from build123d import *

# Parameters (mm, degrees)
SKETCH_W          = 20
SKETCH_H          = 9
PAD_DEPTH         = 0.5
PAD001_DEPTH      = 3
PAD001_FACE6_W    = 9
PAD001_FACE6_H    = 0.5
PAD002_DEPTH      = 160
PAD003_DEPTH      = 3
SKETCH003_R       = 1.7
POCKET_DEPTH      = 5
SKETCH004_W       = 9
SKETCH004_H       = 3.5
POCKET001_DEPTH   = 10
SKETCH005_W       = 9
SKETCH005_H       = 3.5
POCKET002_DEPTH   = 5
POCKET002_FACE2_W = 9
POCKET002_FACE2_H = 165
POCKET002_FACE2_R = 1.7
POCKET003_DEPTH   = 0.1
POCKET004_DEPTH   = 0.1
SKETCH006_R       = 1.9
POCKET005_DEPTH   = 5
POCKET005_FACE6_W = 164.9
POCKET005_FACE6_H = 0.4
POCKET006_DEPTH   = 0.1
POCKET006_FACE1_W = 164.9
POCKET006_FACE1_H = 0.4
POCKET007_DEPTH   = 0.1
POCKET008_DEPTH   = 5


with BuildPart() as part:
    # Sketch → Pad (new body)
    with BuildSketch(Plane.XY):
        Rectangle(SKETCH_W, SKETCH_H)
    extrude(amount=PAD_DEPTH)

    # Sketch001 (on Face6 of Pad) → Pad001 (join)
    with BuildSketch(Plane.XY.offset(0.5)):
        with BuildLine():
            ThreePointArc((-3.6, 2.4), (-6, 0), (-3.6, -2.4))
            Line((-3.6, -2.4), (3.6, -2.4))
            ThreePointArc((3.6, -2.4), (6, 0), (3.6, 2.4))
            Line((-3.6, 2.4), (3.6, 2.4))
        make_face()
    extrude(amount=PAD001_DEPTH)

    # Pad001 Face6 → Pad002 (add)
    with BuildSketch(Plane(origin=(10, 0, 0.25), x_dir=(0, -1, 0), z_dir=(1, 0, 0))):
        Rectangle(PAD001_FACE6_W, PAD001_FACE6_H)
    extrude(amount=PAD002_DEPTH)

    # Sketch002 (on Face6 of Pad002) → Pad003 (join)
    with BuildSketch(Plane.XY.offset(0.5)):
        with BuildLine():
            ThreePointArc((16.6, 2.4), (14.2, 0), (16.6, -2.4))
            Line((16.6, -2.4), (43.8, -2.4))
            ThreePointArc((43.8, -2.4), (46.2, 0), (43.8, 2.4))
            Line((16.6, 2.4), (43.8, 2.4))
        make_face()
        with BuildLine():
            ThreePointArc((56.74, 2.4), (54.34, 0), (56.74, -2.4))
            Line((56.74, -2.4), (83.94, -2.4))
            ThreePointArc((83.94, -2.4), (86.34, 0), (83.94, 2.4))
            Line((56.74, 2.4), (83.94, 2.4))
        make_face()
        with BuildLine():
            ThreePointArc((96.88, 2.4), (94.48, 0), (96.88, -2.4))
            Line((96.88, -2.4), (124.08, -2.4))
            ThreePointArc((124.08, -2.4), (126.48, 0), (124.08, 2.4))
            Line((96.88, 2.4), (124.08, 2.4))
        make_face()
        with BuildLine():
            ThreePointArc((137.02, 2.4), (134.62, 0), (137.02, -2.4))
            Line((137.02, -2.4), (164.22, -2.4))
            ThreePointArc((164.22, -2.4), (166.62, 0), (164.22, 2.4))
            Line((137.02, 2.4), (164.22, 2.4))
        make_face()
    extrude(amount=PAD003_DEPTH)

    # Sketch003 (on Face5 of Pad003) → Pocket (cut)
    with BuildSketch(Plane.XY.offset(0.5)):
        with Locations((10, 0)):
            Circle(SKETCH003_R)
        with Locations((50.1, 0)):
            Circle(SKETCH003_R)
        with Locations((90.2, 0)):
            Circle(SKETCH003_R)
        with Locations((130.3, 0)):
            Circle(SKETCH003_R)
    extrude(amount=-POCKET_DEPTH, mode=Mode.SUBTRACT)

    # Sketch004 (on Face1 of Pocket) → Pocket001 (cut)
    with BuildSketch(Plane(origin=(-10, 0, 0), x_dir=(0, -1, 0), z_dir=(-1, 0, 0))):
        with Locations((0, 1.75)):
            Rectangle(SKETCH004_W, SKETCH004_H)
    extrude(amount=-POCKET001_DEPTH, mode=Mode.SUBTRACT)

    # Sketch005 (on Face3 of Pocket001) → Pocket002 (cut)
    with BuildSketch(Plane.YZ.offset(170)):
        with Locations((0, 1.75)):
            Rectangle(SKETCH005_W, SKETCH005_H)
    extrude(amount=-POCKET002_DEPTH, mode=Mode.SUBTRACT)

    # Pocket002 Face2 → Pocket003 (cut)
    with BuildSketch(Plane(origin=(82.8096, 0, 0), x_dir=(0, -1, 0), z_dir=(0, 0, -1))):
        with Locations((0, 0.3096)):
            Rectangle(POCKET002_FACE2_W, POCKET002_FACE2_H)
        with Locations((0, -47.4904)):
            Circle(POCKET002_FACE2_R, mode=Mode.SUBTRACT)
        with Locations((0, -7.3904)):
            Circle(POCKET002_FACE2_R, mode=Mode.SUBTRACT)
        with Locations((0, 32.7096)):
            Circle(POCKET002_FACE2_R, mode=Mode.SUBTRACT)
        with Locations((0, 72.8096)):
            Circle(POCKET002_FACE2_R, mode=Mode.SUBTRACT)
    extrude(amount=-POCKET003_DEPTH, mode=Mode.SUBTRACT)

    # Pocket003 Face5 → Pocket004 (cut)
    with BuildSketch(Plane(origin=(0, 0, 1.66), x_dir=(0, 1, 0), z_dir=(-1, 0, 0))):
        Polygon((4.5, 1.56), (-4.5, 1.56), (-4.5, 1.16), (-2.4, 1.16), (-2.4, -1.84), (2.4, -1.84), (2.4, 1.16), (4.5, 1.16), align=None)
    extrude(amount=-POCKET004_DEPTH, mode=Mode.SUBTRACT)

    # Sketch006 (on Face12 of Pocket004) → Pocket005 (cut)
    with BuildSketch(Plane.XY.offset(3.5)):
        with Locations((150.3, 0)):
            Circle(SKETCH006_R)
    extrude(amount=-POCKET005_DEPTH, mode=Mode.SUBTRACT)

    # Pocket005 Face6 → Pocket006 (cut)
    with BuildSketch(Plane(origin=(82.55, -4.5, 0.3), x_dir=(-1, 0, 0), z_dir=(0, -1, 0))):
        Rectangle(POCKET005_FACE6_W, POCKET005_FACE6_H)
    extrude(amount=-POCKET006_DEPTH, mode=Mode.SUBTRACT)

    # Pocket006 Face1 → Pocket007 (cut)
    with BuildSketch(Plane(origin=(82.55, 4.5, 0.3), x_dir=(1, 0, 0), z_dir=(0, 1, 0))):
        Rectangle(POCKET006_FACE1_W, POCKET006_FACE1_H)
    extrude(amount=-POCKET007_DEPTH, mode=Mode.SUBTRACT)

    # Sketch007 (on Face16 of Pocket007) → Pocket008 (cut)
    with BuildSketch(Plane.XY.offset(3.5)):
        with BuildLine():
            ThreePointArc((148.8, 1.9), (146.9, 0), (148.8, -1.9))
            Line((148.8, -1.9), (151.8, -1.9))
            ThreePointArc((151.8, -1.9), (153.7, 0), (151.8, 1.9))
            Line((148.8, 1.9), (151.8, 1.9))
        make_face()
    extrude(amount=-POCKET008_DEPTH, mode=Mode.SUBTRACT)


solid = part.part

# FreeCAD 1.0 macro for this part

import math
import FreeCAD as App
import Part
import Sketcher

V = App.Vector
Q = App.Units.Quantity

doc = App.newDocument("Part")
body = doc.addObject("PartDesign::Body", "Body")

# Sketch on XY plane
sketch1 = body.newObject("Sketcher::SketchObject", "Sketch")
sketch1.AttachmentSupport = (doc.getObject("XY_Plane"), [""])
sketch1.MapMode = "FlatFace"
sketch1.addGeometry(Part.LineSegment(V(-10, 4, 0), V(-10, -4, 0)), False)
sketch1.addGeometry(Part.LineSegment(V(-10, -4, 0), V(10, -4, 0)), False)
sketch1.addGeometry(Part.LineSegment(V(10, -4, 0), V(10, 4, 0)), False)
sketch1.addGeometry(Part.LineSegment(V(10, 4, 0), V(-10, 4, 0)), False)
sketch1.addConstraint(Sketcher.Constraint("Coincident", 0, 2, 1, 1))
sketch1.addConstraint(Sketcher.Constraint("Coincident", 1, 2, 2, 1))
sketch1.addConstraint(Sketcher.Constraint("Coincident", 2, 2, 3, 1))
sketch1.addConstraint(Sketcher.Constraint("Coincident", 3, 2, 0, 1))
sketch1.addConstraint(Sketcher.Constraint("Vertical", 0))
sketch1.addConstraint(Sketcher.Constraint("Horizontal", 1))
sketch1.addConstraint(Sketcher.Constraint("Vertical", 2))
sketch1.addConstraint(Sketcher.Constraint("Horizontal", 3))
sketch1.addConstraint(Sketcher.Constraint("Symmetric", 0, 2, 2, 2, -1, 1))
sketch1.addConstraint(Sketcher.Constraint("DistanceX", 1, 1, 1, 2, Q("20 mm")))
sketch1.addConstraint(Sketcher.Constraint("DistanceY", 0, 2, 0, 1, Q("9 mm")))
pad1 = body.newObject("PartDesign::Pad", "Pad")
pad1.Profile = sketch1
pad1.Length = 0.5

# Sketch on XY plane
sketch2 = body.newObject("Sketcher::SketchObject", "Sketch001")
sketch2.AttachmentSupport = (doc.getObject("XY_Plane"), [""])
sketch2.MapMode = "FlatFace"
sketch2.AttachmentOffset = App.Placement(V(0, 0, 0.5), App.Rotation())
sketch2.addGeometry(Part.ArcOfCircle(Part.Circle(V(-3.6, 0, 0), V(0, 0, 1), 2.4), math.radians(90), math.radians(270)), False)
sketch2.addGeometry(Part.LineSegment(V(-3.6, -2.4, 0), V(3.6, -2.4, 0)), False)
sketch2.addGeometry(Part.ArcOfCircle(Part.Circle(V(3.6, 0, 0), V(0, 0, 1), 2.4), math.radians(-90), math.radians(90)), False)
sketch2.addGeometry(Part.LineSegment(V(3.6, 2.4, 0), V(-3.6, 2.4, 0)), False)
sketch2.addConstraint(Sketcher.Constraint("Tangent", 0, 2, 1, 1))
sketch2.addConstraint(Sketcher.Constraint("Tangent", 1, 2, 2, 1))
sketch2.addConstraint(Sketcher.Constraint("Tangent", 2, 2, 3, 1))
sketch2.addConstraint(Sketcher.Constraint("Tangent", 3, 2, 0, 1))
sketch2.addConstraint(Sketcher.Constraint("Horizontal", 1))
sketch2.addConstraint(Sketcher.Constraint("Horizontal", 3))
sketch2.addConstraint(Sketcher.Constraint("Symmetric", 0, 3, 2, 3, -1, 1))
sketch2.addConstraint(Sketcher.Constraint("Radius", 0, Q("2.4 mm")))
sketch2.addConstraint(Sketcher.Constraint("DistanceX", 1, 1, 1, 2, Q("7.2 mm")))
pad2 = body.newObject("PartDesign::Pad", "Pad001")
pad2.Profile = sketch2
pad2.Length = 3

# Sketch on YZ plane
sketch3 = body.newObject("Sketcher::SketchObject", "Sketch002")
sketch3.AttachmentSupport = (doc.getObject("YZ_Plane"), [""])
sketch3.MapMode = "FlatFace"
sketch3.AttachmentOffset = App.Placement(V(0, 0, 10), App.Rotation())
sketch3.addGeometry(Part.LineSegment(V(4.5, 0, 0), V(4.5, 0.5, 0)), False)
sketch3.addGeometry(Part.LineSegment(V(4.5, 0.5, 0), V(-4.5, 0.5, 0)), False)
sketch3.addGeometry(Part.LineSegment(V(-4.5, 0.5, 0), V(-4.5, 0, 0)), False)
sketch3.addGeometry(Part.LineSegment(V(-4.5, 0, 0), V(4.5, 0, 0)), False)
sketch3.addConstraint(Sketcher.Constraint("Coincident", 0, 2, 1, 1))
sketch3.addConstraint(Sketcher.Constraint("Coincident", 1, 2, 2, 1))
sketch3.addConstraint(Sketcher.Constraint("Coincident", 2, 2, 3, 1))
sketch3.addConstraint(Sketcher.Constraint("Coincident", 3, 2, 0, 1))
sketch3.addConstraint(Sketcher.Constraint("Vertical", 0))
sketch3.addConstraint(Sketcher.Constraint("Horizontal", 1))
sketch3.addConstraint(Sketcher.Constraint("Vertical", 2))
sketch3.addConstraint(Sketcher.Constraint("Horizontal", 3))
sketch3.addConstraint(Sketcher.Constraint("Symmetric", 2, 2, 3, 2, -1, 1))
sketch3.addConstraint(Sketcher.Constraint("DistanceX", 1, 2, 1, 1, Q("9 mm")))
sketch3.addConstraint(Sketcher.Constraint("DistanceY", 0, 1, 0, 2, Q("0.5 mm")))
pad3 = body.newObject("PartDesign::Pad", "Pad002")
pad3.Profile = sketch3
pad3.Length = 160

# Sketch on XY plane
sketch4 = body.newObject("Sketcher::SketchObject", "Sketch003")
sketch4.AttachmentSupport = (doc.getObject("XY_Plane"), [""])
sketch4.MapMode = "FlatFace"
sketch4.AttachmentOffset = App.Placement(V(0, 0, 0.5), App.Rotation())
sketch4.addGeometry(Part.ArcOfCircle(Part.Circle(V(16.6, 0, 0), V(0, 0, 1), 2.4), math.radians(90), math.radians(270)), False)
sketch4.addGeometry(Part.LineSegment(V(16.6, -2.4, 0), V(43.8, -2.4, 0)), False)
sketch4.addGeometry(Part.ArcOfCircle(Part.Circle(V(43.8, 0, 0), V(0, 0, 1), 2.4), math.radians(-90), math.radians(90)), False)
sketch4.addGeometry(Part.LineSegment(V(43.8, 2.4, 0), V(16.6, 2.4, 0)), False)
sketch4.addGeometry(Part.ArcOfCircle(Part.Circle(V(56.7, 0, 0), V(0, 0, 1), 2.4), math.radians(90), math.radians(270)), False)
sketch4.addGeometry(Part.LineSegment(V(56.7, -2.4, 0), V(83.9, -2.4, 0)), False)
sketch4.addGeometry(Part.ArcOfCircle(Part.Circle(V(83.9, 0, 0), V(0, 0, 1), 2.4), math.radians(-90), math.radians(90)), False)
sketch4.addGeometry(Part.LineSegment(V(83.9, 2.4, 0), V(56.7, 2.4, 0)), False)
sketch4.addGeometry(Part.ArcOfCircle(Part.Circle(V(96.9, 0, 0), V(0, 0, 1), 2.4), math.radians(90), math.radians(270)), False)
sketch4.addGeometry(Part.LineSegment(V(96.9, -2.4, 0), V(124.1, -2.4, 0)), False)
sketch4.addGeometry(Part.ArcOfCircle(Part.Circle(V(124.1, 0, 0), V(0, 0, 1), 2.4), math.radians(-90), math.radians(90)), False)
sketch4.addGeometry(Part.LineSegment(V(124.1, 2.4, 0), V(96.9, 2.4, 0)), False)
sketch4.addGeometry(Part.ArcOfCircle(Part.Circle(V(137, 0, 0), V(0, 0, 1), 2.4), math.radians(90), math.radians(270)), False)
sketch4.addGeometry(Part.LineSegment(V(137, -2.4, 0), V(164.2, -2.4, 0)), False)
sketch4.addGeometry(Part.ArcOfCircle(Part.Circle(V(164.2, 0, 0), V(0, 0, 1), 2.4), math.radians(-90), math.radians(90)), False)
sketch4.addGeometry(Part.LineSegment(V(164.2, 2.4, 0), V(137, 2.4, 0)), False)
sketch4.addConstraint(Sketcher.Constraint("Tangent", 0, 2, 1, 1))
sketch4.addConstraint(Sketcher.Constraint("Tangent", 1, 2, 2, 1))
sketch4.addConstraint(Sketcher.Constraint("Tangent", 2, 2, 3, 1))
sketch4.addConstraint(Sketcher.Constraint("Tangent", 3, 2, 0, 1))
sketch4.addConstraint(Sketcher.Constraint("Tangent", 4, 2, 5, 1))
sketch4.addConstraint(Sketcher.Constraint("Tangent", 5, 2, 6, 1))
sketch4.addConstraint(Sketcher.Constraint("Tangent", 6, 2, 7, 1))
sketch4.addConstraint(Sketcher.Constraint("Tangent", 7, 2, 4, 1))
sketch4.addConstraint(Sketcher.Constraint("Tangent", 8, 2, 9, 1))
sketch4.addConstraint(Sketcher.Constraint("Tangent", 9, 2, 10, 1))
sketch4.addConstraint(Sketcher.Constraint("Tangent", 10, 2, 11, 1))
sketch4.addConstraint(Sketcher.Constraint("Tangent", 11, 2, 8, 1))
sketch4.addConstraint(Sketcher.Constraint("Tangent", 12, 2, 13, 1))
sketch4.addConstraint(Sketcher.Constraint("Tangent", 13, 2, 14, 1))
sketch4.addConstraint(Sketcher.Constraint("Tangent", 14, 2, 15, 1))
sketch4.addConstraint(Sketcher.Constraint("Tangent", 15, 2, 12, 1))
sketch4.addConstraint(Sketcher.Constraint("Horizontal", 1))
sketch4.addConstraint(Sketcher.Constraint("Horizontal", 3))
sketch4.addConstraint(Sketcher.Constraint("Horizontal", 5))
sketch4.addConstraint(Sketcher.Constraint("Horizontal", 7))
sketch4.addConstraint(Sketcher.Constraint("Horizontal", 9))
sketch4.addConstraint(Sketcher.Constraint("Horizontal", 11))
sketch4.addConstraint(Sketcher.Constraint("Horizontal", 13))
sketch4.addConstraint(Sketcher.Constraint("Horizontal", 15))
sketch4.addConstraint(Sketcher.Constraint("Equal", 2, 4))
sketch4.addConstraint(Sketcher.Constraint("Equal", 6, 8))
sketch4.addConstraint(Sketcher.Constraint("Equal", 10, 12))
sketch4.addConstraint(Sketcher.Constraint("PointOnObject", 0, 3, -1))
sketch4.addConstraint(Sketcher.Constraint("PointOnObject", 4, 3, -1))
sketch4.addConstraint(Sketcher.Constraint("PointOnObject", 8, 3, -1))
sketch4.addConstraint(Sketcher.Constraint("PointOnObject", 12, 3, -1))
sketch4.addConstraint(Sketcher.Constraint("Equal", 3, 5))
sketch4.addConstraint(Sketcher.Constraint("Equal", 7, 9))
sketch4.addConstraint(Sketcher.Constraint("Equal", 11, 13))
sketch4.addConstraint(Sketcher.Constraint("Radius", 0, Q("2.4 mm")))
sketch4.addConstraint(Sketcher.Constraint("DistanceX", 1, 1, 1, 2, Q("27.2 mm")))
sketch4.addConstraint(Sketcher.Constraint("DistanceX", -1, 1, 0, 3, Q("16.6 mm")))
sketch4.addConstraint(Sketcher.Constraint("DistanceX", -1, 1, 4, 3, Q("56.74 mm")))
sketch4.addConstraint(Sketcher.Constraint("DistanceX", -1, 1, 8, 3, Q("96.88 mm")))
sketch4.addConstraint(Sketcher.Constraint("DistanceX", -1, 1, 12, 3, Q("137.02 mm")))
pad4 = body.newObject("PartDesign::Pad", "Pad003")
pad4.Profile = sketch4
pad4.Length = 3

# Sketch on XY plane
sketch5 = body.newObject("Sketcher::SketchObject", "Sketch004")
sketch5.AttachmentSupport = (doc.getObject("XY_Plane"), [""])
sketch5.MapMode = "FlatFace"
sketch5.AttachmentOffset = App.Placement(V(0, 0, 0.5), App.Rotation())
sketch5.addGeometry(Part.Circle(V(10, 0, 0), V(0, 0, 1), 1.7), False)
sketch5.addGeometry(Part.Circle(V(50.1, 0, 0), V(0, 0, 1), 1.7), False)
sketch5.addGeometry(Part.Circle(V(90.2, 0, 0), V(0, 0, 1), 1.7), False)
sketch5.addGeometry(Part.Circle(V(130.3, 0, 0), V(0, 0, 1), 1.7), False)
sketch5.addConstraint(Sketcher.Constraint("Equal", 0, 1))
sketch5.addConstraint(Sketcher.Constraint("Equal", 1, 2))
sketch5.addConstraint(Sketcher.Constraint("Equal", 2, 3))
sketch5.addConstraint(Sketcher.Constraint("PointOnObject", 0, 3, -1))
sketch5.addConstraint(Sketcher.Constraint("PointOnObject", 1, 3, -1))
sketch5.addConstraint(Sketcher.Constraint("PointOnObject", 2, 3, -1))
sketch5.addConstraint(Sketcher.Constraint("PointOnObject", 3, 3, -1))
sketch5.addConstraint(Sketcher.Constraint("Diameter", 0, Q("3.4 mm")))
sketch5.addConstraint(Sketcher.Constraint("DistanceX", -1, 1, 0, 3, Q("10 mm")))
sketch5.addConstraint(Sketcher.Constraint("DistanceX", -1, 1, 1, 3, Q("50.1 mm")))
sketch5.addConstraint(Sketcher.Constraint("DistanceX", -1, 1, 2, 3, Q("90.2 mm")))
sketch5.addConstraint(Sketcher.Constraint("DistanceX", -1, 1, 3, 3, Q("130.3 mm")))
pocket1 = body.newObject("PartDesign::Pocket", "Pocket")
pocket1.Profile = sketch5
pocket1.Length = 5

# Sketch on YZ plane
sketch6 = body.newObject("Sketcher::SketchObject", "Sketch005")
sketch6.AttachmentSupport = (doc.getObject("YZ_Plane"), [""])
sketch6.MapMode = "FlatFace"
sketch6.AttachmentOffset = App.Placement(V(0, 0, -10), App.Rotation())
sketch6.addGeometry(Part.LineSegment(V(4.5, 3.5, 0), V(4.5, 0, 0)), False)
sketch6.addGeometry(Part.LineSegment(V(4.5, 0, 0), V(-4.5, 0, 0)), False)
sketch6.addGeometry(Part.LineSegment(V(-4.5, 0, 0), V(-4.5, 3.5, 0)), False)
sketch6.addGeometry(Part.LineSegment(V(-4.5, 3.5, 0), V(4.5, 3.5, 0)), False)
sketch6.addConstraint(Sketcher.Constraint("Coincident", 0, 2, 1, 1))
sketch6.addConstraint(Sketcher.Constraint("Coincident", 1, 2, 2, 1))
sketch6.addConstraint(Sketcher.Constraint("Coincident", 2, 2, 3, 1))
sketch6.addConstraint(Sketcher.Constraint("Coincident", 3, 2, 0, 1))
sketch6.addConstraint(Sketcher.Constraint("Vertical", 0))
sketch6.addConstraint(Sketcher.Constraint("Horizontal", 1))
sketch6.addConstraint(Sketcher.Constraint("Vertical", 2))
sketch6.addConstraint(Sketcher.Constraint("Horizontal", 3))
sketch6.addConstraint(Sketcher.Constraint("Symmetric", 0, 2, 1, 2, -1, 1))
sketch6.addConstraint(Sketcher.Constraint("DistanceX", 1, 2, 1, 1, Q("9 mm")))
sketch6.addConstraint(Sketcher.Constraint("DistanceY", 0, 2, 0, 1, Q("3.5 mm")))
pocket2 = body.newObject("PartDesign::Pocket", "Pocket001")
pocket2.Profile = sketch6
pocket2.Length = 10
pocket2.Reversed = True

# Sketch on YZ plane
sketch7 = body.newObject("Sketcher::SketchObject", "Sketch006")
sketch7.AttachmentSupport = (doc.getObject("YZ_Plane"), [""])
sketch7.MapMode = "FlatFace"
sketch7.AttachmentOffset = App.Placement(V(0, 0, 170), App.Rotation())
sketch7.addGeometry(Part.LineSegment(V(-4.5, 3.5, 0), V(-4.5, 0, 0)), False)
sketch7.addGeometry(Part.LineSegment(V(-4.5, 0, 0), V(4.5, 0, 0)), False)
sketch7.addGeometry(Part.LineSegment(V(4.5, 0, 0), V(4.5, 3.5, 0)), False)
sketch7.addGeometry(Part.LineSegment(V(4.5, 3.5, 0), V(-4.5, 3.5, 0)), False)
sketch7.addConstraint(Sketcher.Constraint("Coincident", 0, 2, 1, 1))
sketch7.addConstraint(Sketcher.Constraint("Coincident", 1, 2, 2, 1))
sketch7.addConstraint(Sketcher.Constraint("Coincident", 2, 2, 3, 1))
sketch7.addConstraint(Sketcher.Constraint("Coincident", 3, 2, 0, 1))
sketch7.addConstraint(Sketcher.Constraint("Vertical", 0))
sketch7.addConstraint(Sketcher.Constraint("Horizontal", 1))
sketch7.addConstraint(Sketcher.Constraint("Vertical", 2))
sketch7.addConstraint(Sketcher.Constraint("Horizontal", 3))
sketch7.addConstraint(Sketcher.Constraint("Symmetric", 0, 2, 1, 2, -1, 1))
sketch7.addConstraint(Sketcher.Constraint("DistanceX", 1, 1, 1, 2, Q("9 mm")))
sketch7.addConstraint(Sketcher.Constraint("DistanceY", 0, 2, 0, 1, Q("3.5 mm")))
pocket3 = body.newObject("PartDesign::Pocket", "Pocket002")
pocket3.Profile = sketch7
pocket3.Length = 5

# Sketch on XY plane
sketch8 = body.newObject("Sketcher::SketchObject", "Sketch007")
sketch8.AttachmentSupport = (doc.getObject("XY_Plane"), [""])
sketch8.MapMode = "FlatFace"
sketch8.addGeometry(Part.LineSegment(V(0, 4.5, 0), V(165, 4.5, 0)), False)
sketch8.addGeometry(Part.LineSegment(V(165, 4.5, 0), V(165, -4.5, 0)), False)
sketch8.addGeometry(Part.LineSegment(V(165, -4.5, 0), V(0, -4.5, 0)), False)
sketch8.addGeometry(Part.LineSegment(V(0, -4.5, 0), V(0, 4.5, 0)), False)
sketch8.addGeometry(Part.Circle(V(130.3, 0, 0), V(0, 0, 1), 1.7), False)
sketch8.addGeometry(Part.Circle(V(90.2, 0, 0), V(0, 0, 1), 1.7), False)
sketch8.addGeometry(Part.Circle(V(50.1, 0, 0), V(0, 0, 1), 1.7), False)
sketch8.addGeometry(Part.Circle(V(10, 0, 0), V(0, 0, 1), 1.7), False)
sketch8.addConstraint(Sketcher.Constraint("Coincident", 0, 2, 1, 1))
sketch8.addConstraint(Sketcher.Constraint("Coincident", 1, 2, 2, 1))
sketch8.addConstraint(Sketcher.Constraint("Coincident", 2, 2, 3, 1))
sketch8.addConstraint(Sketcher.Constraint("Coincident", 3, 2, 0, 1))
sketch8.addConstraint(Sketcher.Constraint("Horizontal", 0))
sketch8.addConstraint(Sketcher.Constraint("Vertical", 1))
sketch8.addConstraint(Sketcher.Constraint("Horizontal", 2))
sketch8.addConstraint(Sketcher.Constraint("Vertical", 3))
sketch8.addConstraint(Sketcher.Constraint("Equal", 4, 5))
sketch8.addConstraint(Sketcher.Constraint("Equal", 5, 6))
sketch8.addConstraint(Sketcher.Constraint("Equal", 6, 7))
sketch8.addConstraint(Sketcher.Constraint("Symmetric", 2, 2, 3, 2, -1, 1))
sketch8.addConstraint(Sketcher.Constraint("PointOnObject", 4, 3, -1))
sketch8.addConstraint(Sketcher.Constraint("PointOnObject", 5, 3, -1))
sketch8.addConstraint(Sketcher.Constraint("PointOnObject", 6, 3, -1))
sketch8.addConstraint(Sketcher.Constraint("PointOnObject", 7, 3, -1))
sketch8.addConstraint(Sketcher.Constraint("Diameter", 4, Q("3.4 mm")))
sketch8.addConstraint(Sketcher.Constraint("DistanceX", 0, 1, 0, 2, Q("165 mm")))
sketch8.addConstraint(Sketcher.Constraint("DistanceY", 1, 2, 1, 1, Q("9 mm")))
sketch8.addConstraint(Sketcher.Constraint("DistanceX", -1, 1, 7, 3, Q("10 mm")))
sketch8.addConstraint(Sketcher.Constraint("DistanceX", -1, 1, 4, 3, Q("130.3 mm")))
sketch8.addConstraint(Sketcher.Constraint("DistanceX", -1, 1, 5, 3, Q("90.2 mm")))
sketch8.addConstraint(Sketcher.Constraint("DistanceX", -1, 1, 6, 3, Q("50.1 mm")))
pocket4 = body.newObject("PartDesign::Pocket", "Pocket003")
pocket4.Profile = sketch8
pocket4.Length = 0.1
pocket4.Reversed = True

# Sketch on YZ plane
sketch9 = body.newObject("Sketcher::SketchObject", "Sketch008")
sketch9.AttachmentSupport = (doc.getObject("YZ_Plane"), [""])
sketch9.MapMode = "FlatFace"
sketch9.addGeometry(Part.LineSegment(V(4.5, 0.1, 0), V(-4.5, 0.1, 0)), False)
sketch9.addGeometry(Part.LineSegment(V(-4.5, 0.1, 0), V(-4.5, 0.5, 0)), False)
sketch9.addGeometry(Part.LineSegment(V(-4.5, 0.5, 0), V(-2.4, 0.5, 0)), False)
sketch9.addGeometry(Part.LineSegment(V(-2.4, 0.5, 0), V(-2.4, 3.5, 0)), False)
sketch9.addGeometry(Part.LineSegment(V(-2.4, 3.5, 0), V(2.4, 3.5, 0)), False)
sketch9.addGeometry(Part.LineSegment(V(2.4, 3.5, 0), V(2.4, 0.5, 0)), False)
sketch9.addGeometry(Part.LineSegment(V(2.4, 0.5, 0), V(4.5, 0.5, 0)), False)
sketch9.addGeometry(Part.LineSegment(V(4.5, 0.5, 0), V(4.5, 0.1, 0)), False)
sketch9.addConstraint(Sketcher.Constraint("Coincident", 0, 2, 1, 1))
sketch9.addConstraint(Sketcher.Constraint("Coincident", 1, 2, 2, 1))
sketch9.addConstraint(Sketcher.Constraint("Coincident", 2, 2, 3, 1))
sketch9.addConstraint(Sketcher.Constraint("Coincident", 3, 2, 4, 1))
sketch9.addConstraint(Sketcher.Constraint("Coincident", 4, 2, 5, 1))
sketch9.addConstraint(Sketcher.Constraint("Coincident", 5, 2, 6, 1))
sketch9.addConstraint(Sketcher.Constraint("Coincident", 6, 2, 7, 1))
sketch9.addConstraint(Sketcher.Constraint("Coincident", 7, 2, 0, 1))
sketch9.addConstraint(Sketcher.Constraint("Horizontal", 0))
sketch9.addConstraint(Sketcher.Constraint("Vertical", 1))
sketch9.addConstraint(Sketcher.Constraint("Horizontal", 2))
sketch9.addConstraint(Sketcher.Constraint("Vertical", 3))
sketch9.addConstraint(Sketcher.Constraint("Horizontal", 4))
sketch9.addConstraint(Sketcher.Constraint("Vertical", 5))
sketch9.addConstraint(Sketcher.Constraint("Horizontal", 6))
sketch9.addConstraint(Sketcher.Constraint("Vertical", 7))
sketch9.addConstraint(Sketcher.Constraint("Symmetric", 2, 2, 5, 2, -2))
sketch9.addConstraint(Sketcher.Constraint("Equal", 2, 6))
sketch9.addConstraint(Sketcher.Constraint("DistanceX", 0, 2, 0, 1, Q("9 mm")))
sketch9.addConstraint(Sketcher.Constraint("DistanceY", 3, 1, 3, 2, Q("3 mm")))
sketch9.addConstraint(Sketcher.Constraint("DistanceX", 2, 1, 2, 2, Q("2.1 mm")))
sketch9.addConstraint(Sketcher.Constraint("DistanceY", 1, 1, 1, 2, Q("0.4 mm")))
sketch9.addConstraint(Sketcher.Constraint("DistanceY", -1, 1, 0, 2, Q("0.1 mm")))
pocket5 = body.newObject("PartDesign::Pocket", "Pocket004")
pocket5.Profile = sketch9
pocket5.Length = 0.1
pocket5.Reversed = True

# Sketch on XY plane
sketch10 = body.newObject("Sketcher::SketchObject", "Sketch009")
sketch10.AttachmentSupport = (doc.getObject("XY_Plane"), [""])
sketch10.MapMode = "FlatFace"
sketch10.AttachmentOffset = App.Placement(V(0, 0, 3.5), App.Rotation())
sketch10.addGeometry(Part.Circle(V(150.3, 0, 0), V(0, 0, 1), 1.9), False)
sketch10.addConstraint(Sketcher.Constraint("PointOnObject", 0, 3, -1))
sketch10.addConstraint(Sketcher.Constraint("Diameter", 0, Q("3.8 mm")))
sketch10.addConstraint(Sketcher.Constraint("DistanceX", -1, 1, 0, 3, Q("150.3 mm")))
pocket6 = body.newObject("PartDesign::Pocket", "Pocket005")
pocket6.Profile = sketch10
pocket6.Length = 5

# Sketch on XZ plane
sketch11 = body.newObject("Sketcher::SketchObject", "Sketch010")
sketch11.AttachmentSupport = (doc.getObject("XZ_Plane"), [""])
sketch11.MapMode = "FlatFace"
sketch11.AttachmentOffset = App.Placement(V(0, 0, 4.5), App.Rotation())
sketch11.addGeometry(Part.LineSegment(V(165, 0.1, 0), V(165, 0.5, 0)), False)
sketch11.addGeometry(Part.LineSegment(V(165, 0.5, 0), V(0.1, 0.5, 0)), False)
sketch11.addGeometry(Part.LineSegment(V(0.1, 0.5, 0), V(0.1, 0.1, 0)), False)
sketch11.addGeometry(Part.LineSegment(V(0.1, 0.1, 0), V(165, 0.1, 0)), False)
sketch11.addConstraint(Sketcher.Constraint("Coincident", 0, 2, 1, 1))
sketch11.addConstraint(Sketcher.Constraint("Coincident", 1, 2, 2, 1))
sketch11.addConstraint(Sketcher.Constraint("Coincident", 2, 2, 3, 1))
sketch11.addConstraint(Sketcher.Constraint("Coincident", 3, 2, 0, 1))
sketch11.addConstraint(Sketcher.Constraint("Vertical", 0))
sketch11.addConstraint(Sketcher.Constraint("Horizontal", 1))
sketch11.addConstraint(Sketcher.Constraint("Vertical", 2))
sketch11.addConstraint(Sketcher.Constraint("Horizontal", 3))
sketch11.addConstraint(Sketcher.Constraint("DistanceX", 1, 2, 1, 1, Q("164.9 mm")))
sketch11.addConstraint(Sketcher.Constraint("DistanceY", 0, 1, 0, 2, Q("0.4 mm")))
sketch11.addConstraint(Sketcher.Constraint("DistanceX", -1, 1, 0, 2, Q("165 mm")))
sketch11.addConstraint(Sketcher.Constraint("DistanceY", -1, 1, 0, 2, Q("0.5 mm")))
pocket7 = body.newObject("PartDesign::Pocket", "Pocket006")
pocket7.Profile = sketch11
pocket7.Length = 0.1

# Sketch on XZ plane
sketch12 = body.newObject("Sketcher::SketchObject", "Sketch011")
sketch12.AttachmentSupport = (doc.getObject("XZ_Plane"), [""])
sketch12.MapMode = "FlatFace"
sketch12.AttachmentOffset = App.Placement(V(0, 0, -4.5), App.Rotation())
sketch12.addGeometry(Part.LineSegment(V(0.1, 0.1, 0), V(0.1, 0.5, 0)), False)
sketch12.addGeometry(Part.LineSegment(V(0.1, 0.5, 0), V(165, 0.5, 0)), False)
sketch12.addGeometry(Part.LineSegment(V(165, 0.5, 0), V(165, 0.1, 0)), False)
sketch12.addGeometry(Part.LineSegment(V(165, 0.1, 0), V(0.1, 0.1, 0)), False)
sketch12.addConstraint(Sketcher.Constraint("Coincident", 0, 2, 1, 1))
sketch12.addConstraint(Sketcher.Constraint("Coincident", 1, 2, 2, 1))
sketch12.addConstraint(Sketcher.Constraint("Coincident", 2, 2, 3, 1))
sketch12.addConstraint(Sketcher.Constraint("Coincident", 3, 2, 0, 1))
sketch12.addConstraint(Sketcher.Constraint("Vertical", 0))
sketch12.addConstraint(Sketcher.Constraint("Horizontal", 1))
sketch12.addConstraint(Sketcher.Constraint("Vertical", 2))
sketch12.addConstraint(Sketcher.Constraint("Horizontal", 3))
sketch12.addConstraint(Sketcher.Constraint("DistanceX", 1, 1, 1, 2, Q("164.9 mm")))
sketch12.addConstraint(Sketcher.Constraint("DistanceY", 0, 1, 0, 2, Q("0.4 mm")))
sketch12.addConstraint(Sketcher.Constraint("DistanceX", -1, 1, 1, 2, Q("165 mm")))
sketch12.addConstraint(Sketcher.Constraint("DistanceY", -1, 1, 0, 2, Q("0.5 mm")))
pocket8 = body.newObject("PartDesign::Pocket", "Pocket007")
pocket8.Profile = sketch12
pocket8.Length = 0.1
pocket8.Reversed = True

# Sketch on XY plane
sketch13 = body.newObject("Sketcher::SketchObject", "Sketch012")
sketch13.AttachmentSupport = (doc.getObject("XY_Plane"), [""])
sketch13.MapMode = "FlatFace"
sketch13.AttachmentOffset = App.Placement(V(0, 0, 3.5), App.Rotation())
sketch13.addGeometry(Part.ArcOfCircle(Part.Circle(V(148.8, 0, 0), V(0, 0, 1), 1.9), math.radians(90), math.radians(270)), False)
sketch13.addGeometry(Part.LineSegment(V(148.8, -1.9, 0), V(151.8, -1.9, 0)), False)
sketch13.addGeometry(Part.ArcOfCircle(Part.Circle(V(151.8, 0, 0), V(0, 0, 1), 1.9), math.radians(-90), math.radians(90)), False)
sketch13.addGeometry(Part.LineSegment(V(151.8, 1.9, 0), V(148.8, 1.9, 0)), False)
sketch13.addConstraint(Sketcher.Constraint("Tangent", 0, 2, 1, 1))
sketch13.addConstraint(Sketcher.Constraint("Tangent", 1, 2, 2, 1))
sketch13.addConstraint(Sketcher.Constraint("Tangent", 2, 2, 3, 1))
sketch13.addConstraint(Sketcher.Constraint("Tangent", 3, 2, 0, 1))
sketch13.addConstraint(Sketcher.Constraint("Horizontal", 1))
sketch13.addConstraint(Sketcher.Constraint("Horizontal", 3))
sketch13.addConstraint(Sketcher.Constraint("PointOnObject", 0, 3, -1))
sketch13.addConstraint(Sketcher.Constraint("Radius", 0, Q("1.9 mm")))
sketch13.addConstraint(Sketcher.Constraint("DistanceX", 1, 1, 1, 2, Q("3 mm")))
sketch13.addConstraint(Sketcher.Constraint("DistanceX", -1, 1, 0, 3, Q("148.8 mm")))
pocket9 = body.newObject("PartDesign::Pocket", "Pocket008")
pocket9.Profile = sketch13
pocket9.Length = 5

doc.recompute()
